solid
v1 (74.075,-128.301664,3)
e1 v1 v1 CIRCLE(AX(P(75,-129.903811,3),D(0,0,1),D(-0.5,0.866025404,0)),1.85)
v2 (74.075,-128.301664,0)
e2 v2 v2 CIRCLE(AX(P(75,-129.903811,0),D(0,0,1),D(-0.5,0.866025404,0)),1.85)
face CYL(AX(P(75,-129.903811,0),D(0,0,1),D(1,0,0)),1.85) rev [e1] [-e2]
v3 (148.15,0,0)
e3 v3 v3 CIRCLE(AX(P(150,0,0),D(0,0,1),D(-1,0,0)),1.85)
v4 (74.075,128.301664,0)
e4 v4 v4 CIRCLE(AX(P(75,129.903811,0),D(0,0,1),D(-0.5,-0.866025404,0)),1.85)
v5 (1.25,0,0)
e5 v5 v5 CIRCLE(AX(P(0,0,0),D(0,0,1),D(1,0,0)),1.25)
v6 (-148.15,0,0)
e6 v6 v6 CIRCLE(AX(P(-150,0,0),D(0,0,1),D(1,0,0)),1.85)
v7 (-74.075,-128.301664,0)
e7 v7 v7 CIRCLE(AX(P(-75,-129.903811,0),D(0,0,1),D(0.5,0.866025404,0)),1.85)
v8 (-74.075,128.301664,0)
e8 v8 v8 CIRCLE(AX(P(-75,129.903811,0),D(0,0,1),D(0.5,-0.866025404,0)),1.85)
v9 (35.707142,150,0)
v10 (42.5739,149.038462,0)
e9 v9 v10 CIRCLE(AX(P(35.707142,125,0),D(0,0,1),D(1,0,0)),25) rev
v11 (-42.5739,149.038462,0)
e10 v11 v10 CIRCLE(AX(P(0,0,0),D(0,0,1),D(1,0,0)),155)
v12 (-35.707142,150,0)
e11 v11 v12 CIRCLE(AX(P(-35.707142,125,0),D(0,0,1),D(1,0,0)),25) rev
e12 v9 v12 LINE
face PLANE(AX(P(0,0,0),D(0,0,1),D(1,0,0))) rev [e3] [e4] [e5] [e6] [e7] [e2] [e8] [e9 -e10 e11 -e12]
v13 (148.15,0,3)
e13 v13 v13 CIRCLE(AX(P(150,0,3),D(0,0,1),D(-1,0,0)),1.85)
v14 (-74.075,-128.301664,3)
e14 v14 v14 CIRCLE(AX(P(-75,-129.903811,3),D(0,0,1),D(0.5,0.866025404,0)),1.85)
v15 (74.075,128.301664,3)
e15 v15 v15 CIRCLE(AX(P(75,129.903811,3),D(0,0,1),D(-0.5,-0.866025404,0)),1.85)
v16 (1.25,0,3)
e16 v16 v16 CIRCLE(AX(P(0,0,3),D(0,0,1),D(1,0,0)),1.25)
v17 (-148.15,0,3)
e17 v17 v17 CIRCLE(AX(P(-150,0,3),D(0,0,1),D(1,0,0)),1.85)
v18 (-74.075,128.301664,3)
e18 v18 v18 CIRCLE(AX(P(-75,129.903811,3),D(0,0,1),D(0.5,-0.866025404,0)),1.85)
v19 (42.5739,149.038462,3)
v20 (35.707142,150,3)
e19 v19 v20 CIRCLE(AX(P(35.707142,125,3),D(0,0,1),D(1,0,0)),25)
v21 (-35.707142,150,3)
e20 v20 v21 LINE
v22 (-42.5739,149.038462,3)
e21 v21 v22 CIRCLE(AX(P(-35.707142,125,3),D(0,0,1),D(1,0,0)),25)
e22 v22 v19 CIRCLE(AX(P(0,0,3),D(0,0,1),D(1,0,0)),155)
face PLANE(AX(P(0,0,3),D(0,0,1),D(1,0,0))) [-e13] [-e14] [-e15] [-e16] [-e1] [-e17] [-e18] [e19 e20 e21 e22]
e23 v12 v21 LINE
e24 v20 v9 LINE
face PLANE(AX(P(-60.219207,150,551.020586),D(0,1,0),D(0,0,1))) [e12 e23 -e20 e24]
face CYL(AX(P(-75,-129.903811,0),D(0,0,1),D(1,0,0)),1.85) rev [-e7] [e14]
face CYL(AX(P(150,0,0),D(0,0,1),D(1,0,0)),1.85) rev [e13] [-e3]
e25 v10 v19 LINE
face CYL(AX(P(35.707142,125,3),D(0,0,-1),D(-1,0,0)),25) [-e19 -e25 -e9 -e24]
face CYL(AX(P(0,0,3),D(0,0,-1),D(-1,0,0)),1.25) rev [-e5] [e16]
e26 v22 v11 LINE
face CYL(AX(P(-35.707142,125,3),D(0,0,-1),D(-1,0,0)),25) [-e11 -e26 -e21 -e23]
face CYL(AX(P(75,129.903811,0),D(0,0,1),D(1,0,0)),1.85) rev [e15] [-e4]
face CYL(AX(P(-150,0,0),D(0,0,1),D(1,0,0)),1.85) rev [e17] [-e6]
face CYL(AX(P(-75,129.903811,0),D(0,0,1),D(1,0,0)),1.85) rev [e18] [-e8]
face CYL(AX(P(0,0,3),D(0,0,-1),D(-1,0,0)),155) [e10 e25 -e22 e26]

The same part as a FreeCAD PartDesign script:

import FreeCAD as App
import Part
import Sketcher

V = App.Vector
Q = App.Units.Quantity


def edges_at(feature, points):
    """Names of the edges that pass closest to the given points."""
    edges = feature.Shape.Edges
    near = lambda p: min(range(len(edges)), key=lambda i: edges[i].distToShape(Part.Vertex(*p))[0])
    return sorted({f"Edge{near(p) + 1}" for p in points})


def add_polygon(sketch, points):
    """Adds a closed chain of lines whose ends are joined by coincident constraints."""
    first, n = sketch.GeometryCount, len(points)
    for a, b in zip(points, points[1:] + points[:1]):
        sketch.addGeometry(Part.LineSegment(App.Vector(*a, 0), App.Vector(*b, 0)), False)
    for i in range(n):
        sketch.addConstraint(Sketcher.Constraint("Coincident", first + i, 2, first + (i + 1) % n, 1))

doc = App.newDocument("Part")
body = doc.addObject("PartDesign::Body", "Body")

# Sketch on XY plane
sketch1 = body.newObject("Sketcher::SketchObject", "Sketch")
sketch1.AttachmentSupport = (doc.getObject("XY_Plane"), [""])
sketch1.MapMode = "FlatFace"
sketch1.addGeometry(Part.Circle(V(0, 0, 0), V(0, 0, 1), 155), False)
sketch1.addGeometry(Part.Circle(V(0, 0, 0), V(0, 0, 1), 1.2), False)
sketch1.addConstraint(Sketcher.Constraint("Coincident", 0, 3, -1, 1))
sketch1.addConstraint(Sketcher.Constraint("Coincident", 1, 3, -1, 1))
sketch1.addConstraint(Sketcher.Constraint("Diameter", 0, Q("310 mm")))
sketch1.addConstraint(Sketcher.Constraint("Diameter", 1, Q("2.5 mm")))
pad1 = body.newObject("PartDesign::Pad", "Pad")
pad1.Profile = sketch1
pad1.Length = 3

# Sketch on XY plane
sketch2 = body.newObject("Sketcher::SketchObject", "Sketch001")
sketch2.AttachmentSupport = (doc.getObject("XY_Plane"), [""])
sketch2.MapMode = "FlatFace"
sketch2.AttachmentOffset = App.Placement(V(0, 0, 3), App.Rotation())
sketch2.addGeometry(Part.Circle(V(-150, 0, 0), V(0, 0, 1), 1.9), False)
sketch2.addConstraint(Sketcher.Constraint("PointOnObject", 0, 3, -1))
sketch2.addConstraint(Sketcher.Constraint("Diameter", 0, Q("3.7 mm")))
sketch2.addConstraint(Sketcher.Constraint("DistanceX", 0, 3, -1, 1, Q("150 mm")))
pocket1 = body.newObject("PartDesign::Pocket", "Pocket")
pocket1.Profile = sketch2
pocket1.Type = "ThroughAll"
doc.recompute()

polarpattern = body.newObject("PartDesign::PolarPattern", "PolarPattern")
polarpattern.Originals = [pocket1]
polarpattern.Axis = (doc.getObject("Z_Axis"), [""])
polarpattern.Angle = 360
polarpattern.Occurrences = 6
body.Tip = polarpattern

# Sketch on XY plane
sketch3 = body.newObject("Sketcher::SketchObject", "Sketch002")
sketch3.AttachmentSupport = (doc.getObject("XY_Plane"), [""])
sketch3.MapMode = "FlatFace"
sketch3.AttachmentOffset = App.Placement(V(0, 0, 3), App.Rotation())
add_polygon(sketch3, [(-817, 150), (803, 150), (803, 1663), (-817, 1663)])  # lines 0-3
sketch3.addConstraint(Sketcher.Constraint("Horizontal", 0))
sketch3.addConstraint(Sketcher.Constraint("Vertical", 1))
sketch3.addConstraint(Sketcher.Constraint("Horizontal", 2))
sketch3.addConstraint(Sketcher.Constraint("Vertical", 3))
sketch3.addConstraint(Sketcher.Constraint("DistanceY", -1, 1, 0, 2, Q("150 mm")))
sketch3.addConstraint(Sketcher.Constraint("DistanceX", 0, 1, 0, 2, Q("1619.726586 mm")))
sketch3.addConstraint(Sketcher.Constraint("DistanceY", 1, 1, 1, 2, Q("1513.154014 mm")))
sketch3.addConstraint(Sketcher.Constraint("DistanceX", -1, 1, 0, 2, Q("802.930372 mm")))
pocket2 = body.newObject("PartDesign::Pocket", "Pocket001")
pocket2.Profile = sketch3
pocket2.Type = "ThroughAll"
pocket2.Midplane = True
doc.recompute()

fillet = body.newObject("PartDesign::Fillet", "Fillet")
fillet.Base = (pocket2, edges_at(pocket2, [(-39.051, 150, 1.5), (39.051, 150, 1.5)]))
fillet.Radius = 25

doc.recompute()
